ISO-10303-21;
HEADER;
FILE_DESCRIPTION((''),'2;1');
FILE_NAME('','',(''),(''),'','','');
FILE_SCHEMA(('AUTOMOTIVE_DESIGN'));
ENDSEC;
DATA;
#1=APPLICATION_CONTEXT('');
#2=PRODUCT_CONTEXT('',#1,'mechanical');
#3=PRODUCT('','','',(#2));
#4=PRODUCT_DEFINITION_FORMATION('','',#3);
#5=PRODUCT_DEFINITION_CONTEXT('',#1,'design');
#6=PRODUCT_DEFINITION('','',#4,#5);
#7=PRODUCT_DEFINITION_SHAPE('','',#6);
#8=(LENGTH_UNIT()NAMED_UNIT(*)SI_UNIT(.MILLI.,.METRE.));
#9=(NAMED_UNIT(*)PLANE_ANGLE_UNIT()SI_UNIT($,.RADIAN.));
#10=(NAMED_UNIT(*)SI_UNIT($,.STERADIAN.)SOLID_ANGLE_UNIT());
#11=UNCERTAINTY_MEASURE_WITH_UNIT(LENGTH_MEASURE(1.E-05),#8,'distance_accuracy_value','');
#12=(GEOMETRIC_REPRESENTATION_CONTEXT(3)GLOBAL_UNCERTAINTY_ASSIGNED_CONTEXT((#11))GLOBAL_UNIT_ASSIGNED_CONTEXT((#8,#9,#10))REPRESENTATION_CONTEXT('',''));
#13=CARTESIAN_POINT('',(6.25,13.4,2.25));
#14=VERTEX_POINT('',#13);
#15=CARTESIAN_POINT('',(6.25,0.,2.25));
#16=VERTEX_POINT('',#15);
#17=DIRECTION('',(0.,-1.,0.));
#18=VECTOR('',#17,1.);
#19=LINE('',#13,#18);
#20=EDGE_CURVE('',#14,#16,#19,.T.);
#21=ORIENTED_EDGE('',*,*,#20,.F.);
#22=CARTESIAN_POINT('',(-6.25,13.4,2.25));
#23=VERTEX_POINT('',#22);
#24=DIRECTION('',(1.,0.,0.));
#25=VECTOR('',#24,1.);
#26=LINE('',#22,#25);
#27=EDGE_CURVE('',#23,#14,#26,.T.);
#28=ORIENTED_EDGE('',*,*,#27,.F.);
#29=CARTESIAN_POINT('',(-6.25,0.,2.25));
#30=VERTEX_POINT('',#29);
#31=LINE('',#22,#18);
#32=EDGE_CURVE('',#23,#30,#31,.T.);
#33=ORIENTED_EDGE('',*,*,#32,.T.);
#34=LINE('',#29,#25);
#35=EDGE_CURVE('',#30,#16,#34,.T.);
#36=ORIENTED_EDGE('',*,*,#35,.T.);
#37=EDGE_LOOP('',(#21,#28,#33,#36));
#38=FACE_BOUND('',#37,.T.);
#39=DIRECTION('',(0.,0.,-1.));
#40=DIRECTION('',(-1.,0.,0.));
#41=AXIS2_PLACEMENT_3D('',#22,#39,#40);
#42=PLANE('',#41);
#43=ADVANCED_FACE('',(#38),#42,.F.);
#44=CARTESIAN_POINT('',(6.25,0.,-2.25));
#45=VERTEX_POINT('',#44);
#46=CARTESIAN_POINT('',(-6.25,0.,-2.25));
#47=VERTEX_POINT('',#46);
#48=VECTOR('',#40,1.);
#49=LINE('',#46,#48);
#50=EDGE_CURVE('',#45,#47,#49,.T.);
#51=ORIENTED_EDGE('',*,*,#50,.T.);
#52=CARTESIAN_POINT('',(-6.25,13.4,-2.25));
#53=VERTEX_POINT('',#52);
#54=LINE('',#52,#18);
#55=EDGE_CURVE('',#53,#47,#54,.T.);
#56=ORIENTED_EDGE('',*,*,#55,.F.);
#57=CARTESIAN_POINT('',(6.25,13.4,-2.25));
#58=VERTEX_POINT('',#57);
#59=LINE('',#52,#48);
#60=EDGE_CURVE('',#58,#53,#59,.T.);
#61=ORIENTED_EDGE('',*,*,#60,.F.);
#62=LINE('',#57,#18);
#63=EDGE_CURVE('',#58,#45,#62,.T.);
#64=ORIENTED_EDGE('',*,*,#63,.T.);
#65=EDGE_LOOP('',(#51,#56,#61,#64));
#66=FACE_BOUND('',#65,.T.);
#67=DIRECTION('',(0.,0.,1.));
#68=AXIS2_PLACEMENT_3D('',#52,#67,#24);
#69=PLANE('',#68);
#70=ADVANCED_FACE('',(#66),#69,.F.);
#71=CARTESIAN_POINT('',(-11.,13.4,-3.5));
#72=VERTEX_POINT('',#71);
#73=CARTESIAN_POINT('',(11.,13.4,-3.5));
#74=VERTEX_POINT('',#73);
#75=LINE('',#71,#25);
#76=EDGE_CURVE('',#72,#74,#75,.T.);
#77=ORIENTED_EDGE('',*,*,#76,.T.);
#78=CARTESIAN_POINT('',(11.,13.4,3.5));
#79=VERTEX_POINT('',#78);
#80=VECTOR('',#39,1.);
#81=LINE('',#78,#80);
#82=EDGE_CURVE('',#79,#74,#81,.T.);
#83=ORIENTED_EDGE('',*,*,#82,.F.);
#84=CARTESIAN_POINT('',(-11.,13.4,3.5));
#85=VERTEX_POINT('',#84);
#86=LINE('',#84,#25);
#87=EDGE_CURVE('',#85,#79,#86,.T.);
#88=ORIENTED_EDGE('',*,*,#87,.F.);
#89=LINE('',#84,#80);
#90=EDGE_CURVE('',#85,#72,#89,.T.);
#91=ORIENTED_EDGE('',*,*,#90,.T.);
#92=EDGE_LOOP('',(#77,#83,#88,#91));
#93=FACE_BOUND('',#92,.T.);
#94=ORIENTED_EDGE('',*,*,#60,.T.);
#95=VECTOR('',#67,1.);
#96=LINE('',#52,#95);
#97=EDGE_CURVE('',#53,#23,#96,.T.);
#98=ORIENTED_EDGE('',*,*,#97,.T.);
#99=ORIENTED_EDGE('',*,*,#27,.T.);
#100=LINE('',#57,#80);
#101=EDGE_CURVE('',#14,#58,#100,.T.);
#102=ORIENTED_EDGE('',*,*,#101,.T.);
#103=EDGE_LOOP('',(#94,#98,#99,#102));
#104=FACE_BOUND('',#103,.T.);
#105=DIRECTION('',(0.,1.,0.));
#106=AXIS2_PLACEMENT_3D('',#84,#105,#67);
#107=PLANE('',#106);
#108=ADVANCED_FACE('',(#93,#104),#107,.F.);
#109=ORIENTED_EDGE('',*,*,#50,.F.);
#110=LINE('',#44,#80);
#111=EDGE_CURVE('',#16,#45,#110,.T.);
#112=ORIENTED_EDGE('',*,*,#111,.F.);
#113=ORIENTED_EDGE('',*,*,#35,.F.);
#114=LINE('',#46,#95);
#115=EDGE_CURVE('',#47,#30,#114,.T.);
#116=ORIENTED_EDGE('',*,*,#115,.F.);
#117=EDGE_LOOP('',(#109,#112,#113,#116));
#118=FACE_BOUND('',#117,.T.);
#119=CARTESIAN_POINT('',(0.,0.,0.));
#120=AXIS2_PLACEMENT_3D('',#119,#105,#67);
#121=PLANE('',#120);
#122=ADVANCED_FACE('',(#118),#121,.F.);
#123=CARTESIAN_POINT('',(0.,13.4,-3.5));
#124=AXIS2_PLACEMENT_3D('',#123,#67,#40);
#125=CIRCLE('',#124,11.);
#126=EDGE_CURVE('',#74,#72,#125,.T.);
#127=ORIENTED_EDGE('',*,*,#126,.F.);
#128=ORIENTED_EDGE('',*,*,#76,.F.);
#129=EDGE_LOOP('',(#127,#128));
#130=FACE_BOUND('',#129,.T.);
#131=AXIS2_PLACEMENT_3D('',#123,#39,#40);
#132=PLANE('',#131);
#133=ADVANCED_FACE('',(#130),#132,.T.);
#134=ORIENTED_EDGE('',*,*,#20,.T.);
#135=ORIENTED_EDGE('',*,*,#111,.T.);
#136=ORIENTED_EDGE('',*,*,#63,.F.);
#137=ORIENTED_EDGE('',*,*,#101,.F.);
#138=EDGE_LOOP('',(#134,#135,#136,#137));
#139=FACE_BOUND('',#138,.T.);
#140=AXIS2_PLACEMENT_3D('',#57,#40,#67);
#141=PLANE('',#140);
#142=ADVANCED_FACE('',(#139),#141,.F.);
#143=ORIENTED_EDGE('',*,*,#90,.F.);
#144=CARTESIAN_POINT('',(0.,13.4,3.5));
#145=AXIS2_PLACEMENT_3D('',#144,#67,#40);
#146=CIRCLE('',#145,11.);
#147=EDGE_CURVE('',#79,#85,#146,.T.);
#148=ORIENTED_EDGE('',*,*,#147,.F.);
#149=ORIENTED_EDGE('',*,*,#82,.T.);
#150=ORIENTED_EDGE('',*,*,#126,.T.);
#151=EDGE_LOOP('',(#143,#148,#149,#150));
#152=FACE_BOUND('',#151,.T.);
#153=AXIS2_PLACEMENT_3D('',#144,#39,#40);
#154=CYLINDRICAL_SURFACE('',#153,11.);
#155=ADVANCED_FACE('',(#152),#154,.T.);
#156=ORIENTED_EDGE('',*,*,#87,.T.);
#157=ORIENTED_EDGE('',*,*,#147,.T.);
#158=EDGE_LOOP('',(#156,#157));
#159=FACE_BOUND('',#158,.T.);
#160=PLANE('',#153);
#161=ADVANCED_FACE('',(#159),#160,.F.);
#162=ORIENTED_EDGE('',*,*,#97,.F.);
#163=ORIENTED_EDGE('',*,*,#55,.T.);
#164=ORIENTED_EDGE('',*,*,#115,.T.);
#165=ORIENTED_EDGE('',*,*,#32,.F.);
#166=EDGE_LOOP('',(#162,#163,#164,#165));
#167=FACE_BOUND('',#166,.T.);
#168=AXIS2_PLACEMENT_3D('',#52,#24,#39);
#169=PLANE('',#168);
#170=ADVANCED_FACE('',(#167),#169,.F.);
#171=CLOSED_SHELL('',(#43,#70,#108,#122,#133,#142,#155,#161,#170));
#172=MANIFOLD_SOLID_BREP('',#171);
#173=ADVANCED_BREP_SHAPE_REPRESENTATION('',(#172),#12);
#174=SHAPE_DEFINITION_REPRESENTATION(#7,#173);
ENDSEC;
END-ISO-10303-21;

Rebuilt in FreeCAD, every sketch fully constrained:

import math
import FreeCAD as App
import Part
import Sketcher

V = App.Vector
Q = App.Units.Quantity


def add_polygon(sketch, points):
    """Adds a closed chain of lines whose ends are joined by coincident constraints."""
    first, n = sketch.GeometryCount, len(points)
    for a, b in zip(points, points[1:] + points[:1]):
        sketch.addGeometry(Part.LineSegment(App.Vector(*a, 0), App.Vector(*b, 0)), False)
    for i in range(n):
        sketch.addConstraint(Sketcher.Constraint("Coincident", first + i, 2, first + (i + 1) % n, 1))

doc = App.newDocument("Part")
body = doc.addObject("PartDesign::Body", "Body")

sketch1 = body.newObject("Sketcher::SketchObject", "Sketch")
sketch1.AttachmentSupport = (doc.getObject("XZ_Plane"), [""])
sketch1.MapMode = "FlatFace"
add_polygon(sketch1, [(-6.2, -2.2), (-6.2, 2.2), (6.2, 2.2), (6.2, -2.2)])
sketch1.addConstraint([
    Sketcher.Constraint("Vertical", 0),
    Sketcher.Constraint("Horizontal", 1),
    Sketcher.Constraint("Vertical", 2),
    Sketcher.Constraint("Horizontal", 3),
    Sketcher.Constraint("Symmetric", 0, 2, 2, 2, -1, 1),
    Sketcher.Constraint("DistanceX", 1, 1, 1, 2, Q("12.5 mm")),
    Sketcher.Constraint("DistanceY", 0, 1, 0, 2, Q("4.5 mm")),
])
pad1 = body.newObject("PartDesign::Pad", "Pad")
pad1.Profile = sketch1
pad1.Length = 13.4
pad1.Reversed = True

sketch2 = body.newObject("Sketcher::SketchObject", "Sketch001")
sketch2.AttachmentSupport = (doc.getObject("XY_Plane"), [""])
sketch2.MapMode = "FlatFace"
sketch2.addGeometry([
    Part.LineSegment(V(-11, 13, 0), V(11, 13, 0)),
    Part.ArcOfCircle(Part.Circle(V(0, 13, 0), V(0, 0, 1), 11), math.radians(0), math.radians(180)),
], False)
sketch2.addConstraint([
    Sketcher.Constraint("Coincident", 0, 1, 1, 2),
    Sketcher.Constraint("Coincident", 1, 1, 0, 2),
    Sketcher.Constraint("Horizontal", 0),
    Sketcher.Constraint("PointOnObject", 1, 3, -2),
    Sketcher.Constraint("Horizontal", 1, 3, 0, 1),
    Sketcher.Constraint("Radius", 1, Q("11 mm")),
    Sketcher.Constraint("DistanceY", -1, 1, 1, 3, Q("13.4 mm")),
])
pad2 = body.newObject("PartDesign::Pad", "Pad001")
pad2.Profile = sketch2
pad2.Length = 7
pad2.Midplane = True

doc.recompute()
